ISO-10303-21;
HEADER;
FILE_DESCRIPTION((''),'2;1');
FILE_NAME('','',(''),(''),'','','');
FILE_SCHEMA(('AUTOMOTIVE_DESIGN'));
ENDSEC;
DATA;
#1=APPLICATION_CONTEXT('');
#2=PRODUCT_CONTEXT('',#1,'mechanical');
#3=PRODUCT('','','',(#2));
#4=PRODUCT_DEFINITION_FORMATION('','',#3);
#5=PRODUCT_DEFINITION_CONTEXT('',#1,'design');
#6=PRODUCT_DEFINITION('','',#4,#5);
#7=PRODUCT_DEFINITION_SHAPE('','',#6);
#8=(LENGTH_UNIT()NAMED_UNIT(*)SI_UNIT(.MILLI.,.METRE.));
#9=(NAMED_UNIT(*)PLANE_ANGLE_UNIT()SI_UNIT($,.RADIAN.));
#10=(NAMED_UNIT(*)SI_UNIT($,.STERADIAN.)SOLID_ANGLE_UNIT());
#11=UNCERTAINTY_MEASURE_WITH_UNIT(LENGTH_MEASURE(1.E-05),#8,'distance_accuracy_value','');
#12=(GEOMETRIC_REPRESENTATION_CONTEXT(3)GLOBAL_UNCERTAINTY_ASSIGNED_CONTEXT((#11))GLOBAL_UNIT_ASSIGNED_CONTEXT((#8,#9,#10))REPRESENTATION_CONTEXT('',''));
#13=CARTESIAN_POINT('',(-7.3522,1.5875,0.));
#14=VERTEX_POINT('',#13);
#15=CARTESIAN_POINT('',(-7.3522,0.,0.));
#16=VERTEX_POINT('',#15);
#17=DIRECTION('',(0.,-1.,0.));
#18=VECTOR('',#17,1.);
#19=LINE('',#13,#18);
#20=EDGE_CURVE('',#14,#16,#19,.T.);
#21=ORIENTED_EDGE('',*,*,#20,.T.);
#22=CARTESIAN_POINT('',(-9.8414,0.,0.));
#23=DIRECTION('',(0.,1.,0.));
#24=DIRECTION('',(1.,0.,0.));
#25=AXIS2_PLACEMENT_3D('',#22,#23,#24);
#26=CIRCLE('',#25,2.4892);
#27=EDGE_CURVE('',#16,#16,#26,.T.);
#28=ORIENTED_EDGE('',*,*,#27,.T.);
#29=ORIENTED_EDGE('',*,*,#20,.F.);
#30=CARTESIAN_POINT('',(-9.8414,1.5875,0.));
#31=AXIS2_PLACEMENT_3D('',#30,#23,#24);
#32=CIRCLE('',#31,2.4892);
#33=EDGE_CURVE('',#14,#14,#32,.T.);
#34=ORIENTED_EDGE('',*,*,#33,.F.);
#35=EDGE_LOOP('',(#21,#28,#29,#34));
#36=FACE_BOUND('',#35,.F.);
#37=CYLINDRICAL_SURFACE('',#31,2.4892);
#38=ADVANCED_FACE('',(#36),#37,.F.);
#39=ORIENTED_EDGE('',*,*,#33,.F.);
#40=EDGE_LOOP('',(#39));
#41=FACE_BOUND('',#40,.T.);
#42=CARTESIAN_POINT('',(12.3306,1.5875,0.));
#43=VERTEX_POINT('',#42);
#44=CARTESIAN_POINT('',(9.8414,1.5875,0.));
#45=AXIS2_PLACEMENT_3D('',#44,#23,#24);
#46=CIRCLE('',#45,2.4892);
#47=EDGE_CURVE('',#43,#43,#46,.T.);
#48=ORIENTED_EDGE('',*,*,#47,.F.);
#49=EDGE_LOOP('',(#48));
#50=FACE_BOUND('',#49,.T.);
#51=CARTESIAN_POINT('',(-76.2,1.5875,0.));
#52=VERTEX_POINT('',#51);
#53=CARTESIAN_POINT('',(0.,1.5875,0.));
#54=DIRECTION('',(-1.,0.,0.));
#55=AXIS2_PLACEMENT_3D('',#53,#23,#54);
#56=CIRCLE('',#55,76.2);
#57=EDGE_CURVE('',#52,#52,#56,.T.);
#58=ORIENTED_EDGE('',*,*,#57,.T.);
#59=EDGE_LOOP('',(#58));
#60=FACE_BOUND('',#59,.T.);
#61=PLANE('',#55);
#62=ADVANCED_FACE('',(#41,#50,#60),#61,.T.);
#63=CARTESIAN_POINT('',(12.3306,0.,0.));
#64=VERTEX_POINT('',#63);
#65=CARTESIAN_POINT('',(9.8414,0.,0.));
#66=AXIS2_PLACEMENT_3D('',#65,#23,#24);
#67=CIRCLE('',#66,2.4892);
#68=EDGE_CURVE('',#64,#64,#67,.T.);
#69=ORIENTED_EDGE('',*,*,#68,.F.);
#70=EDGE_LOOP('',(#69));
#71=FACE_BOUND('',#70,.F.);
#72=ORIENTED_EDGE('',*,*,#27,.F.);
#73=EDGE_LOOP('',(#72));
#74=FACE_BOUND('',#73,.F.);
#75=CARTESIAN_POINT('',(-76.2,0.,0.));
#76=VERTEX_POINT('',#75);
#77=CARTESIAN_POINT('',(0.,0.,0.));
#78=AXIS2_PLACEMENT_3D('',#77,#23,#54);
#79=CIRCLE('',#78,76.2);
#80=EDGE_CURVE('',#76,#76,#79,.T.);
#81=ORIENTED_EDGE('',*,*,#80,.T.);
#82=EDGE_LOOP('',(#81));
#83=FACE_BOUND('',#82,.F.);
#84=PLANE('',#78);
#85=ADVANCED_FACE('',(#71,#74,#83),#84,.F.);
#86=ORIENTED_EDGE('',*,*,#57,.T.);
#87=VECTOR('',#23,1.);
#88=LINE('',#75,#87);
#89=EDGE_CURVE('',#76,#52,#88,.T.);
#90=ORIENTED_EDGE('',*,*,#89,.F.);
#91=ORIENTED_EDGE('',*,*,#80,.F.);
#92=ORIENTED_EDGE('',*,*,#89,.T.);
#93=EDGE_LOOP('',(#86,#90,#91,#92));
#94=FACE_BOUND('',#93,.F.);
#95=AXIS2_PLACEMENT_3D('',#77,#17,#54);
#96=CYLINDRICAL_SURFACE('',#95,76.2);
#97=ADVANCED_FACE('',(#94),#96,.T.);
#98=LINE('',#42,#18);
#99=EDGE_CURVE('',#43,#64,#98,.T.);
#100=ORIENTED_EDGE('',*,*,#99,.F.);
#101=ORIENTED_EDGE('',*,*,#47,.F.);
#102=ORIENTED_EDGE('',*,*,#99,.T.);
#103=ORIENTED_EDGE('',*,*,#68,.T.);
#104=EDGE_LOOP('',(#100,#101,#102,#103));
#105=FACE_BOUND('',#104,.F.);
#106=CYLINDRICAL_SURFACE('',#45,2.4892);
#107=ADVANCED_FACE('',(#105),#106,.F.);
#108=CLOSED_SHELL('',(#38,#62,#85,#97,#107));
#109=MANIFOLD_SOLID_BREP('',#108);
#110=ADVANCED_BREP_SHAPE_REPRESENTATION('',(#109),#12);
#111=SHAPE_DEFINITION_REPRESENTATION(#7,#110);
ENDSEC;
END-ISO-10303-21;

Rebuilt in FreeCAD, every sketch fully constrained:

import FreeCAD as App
import Part
import Sketcher
Q = App.Units.Quantity

doc = App.newDocument("Part")
body = doc.addObject("PartDesign::Body", "Body")

sketch1 = body.newObject("Sketcher::SketchObject", "Sketch")
sketch1.AttachmentSupport = (doc.getObject("XZ_Plane"), [""])
sketch1.MapMode = "FlatFace"
sketch1.addGeometry(Part.Circle(App.Vector(0, 0, 0), App.Vector(0, 0, 1), 76.2), False)
sketch1.addConstraint(Sketcher.Constraint("Coincident", 0, 3, -1, 1))
sketch1.addConstraint(Sketcher.Constraint("Diameter", 0, Q("6 in")))
pad1 = body.newObject("PartDesign::Pad", "Pad")
pad1.Profile = sketch1
pad1.Length = Q("0.0625 in")
pad1.Reversed = True

sketch2 = body.newObject("Sketcher::SketchObject", "Sketch001")
sketch2.AttachmentSupport = (doc.getObject("XZ_Plane"), [""])
sketch2.MapMode = "FlatFace"
sketch2.AttachmentOffset = App.Placement(App.Vector(0, 0, -0.0625 * 25.4), App.Rotation())
sketch2.addGeometry(Part.Circle(App.Vector(-9.8414, 0, 0), App.Vector(0, 0, 1), 2.4892), False)
sketch2.addGeometry(Part.Circle(App.Vector(9.8414, 0, 0), App.Vector(0, 0, 1), 2.4892), False)
sketch2.addConstraint(Sketcher.Constraint("Equal", 0, 1))
sketch2.addConstraint(Sketcher.Constraint("Symmetric", 0, 3, 1, 3, -1, 1))
sketch2.addConstraint(Sketcher.Constraint("PointOnObject", 0, 3, -1))
sketch2.addConstraint(Sketcher.Constraint("Diameter", 0, Q("0.196 in")))
sketch2.addConstraint(Sketcher.Constraint("DistanceX", 0, 3, 1, 3, Q("19.6828 mm")))
pocket1 = body.newObject("PartDesign::Pocket", "Pocket")
pocket1.Profile = sketch2
pocket1.Type = "ThroughAll"
pocket1.Reversed = True

doc.recompute()
